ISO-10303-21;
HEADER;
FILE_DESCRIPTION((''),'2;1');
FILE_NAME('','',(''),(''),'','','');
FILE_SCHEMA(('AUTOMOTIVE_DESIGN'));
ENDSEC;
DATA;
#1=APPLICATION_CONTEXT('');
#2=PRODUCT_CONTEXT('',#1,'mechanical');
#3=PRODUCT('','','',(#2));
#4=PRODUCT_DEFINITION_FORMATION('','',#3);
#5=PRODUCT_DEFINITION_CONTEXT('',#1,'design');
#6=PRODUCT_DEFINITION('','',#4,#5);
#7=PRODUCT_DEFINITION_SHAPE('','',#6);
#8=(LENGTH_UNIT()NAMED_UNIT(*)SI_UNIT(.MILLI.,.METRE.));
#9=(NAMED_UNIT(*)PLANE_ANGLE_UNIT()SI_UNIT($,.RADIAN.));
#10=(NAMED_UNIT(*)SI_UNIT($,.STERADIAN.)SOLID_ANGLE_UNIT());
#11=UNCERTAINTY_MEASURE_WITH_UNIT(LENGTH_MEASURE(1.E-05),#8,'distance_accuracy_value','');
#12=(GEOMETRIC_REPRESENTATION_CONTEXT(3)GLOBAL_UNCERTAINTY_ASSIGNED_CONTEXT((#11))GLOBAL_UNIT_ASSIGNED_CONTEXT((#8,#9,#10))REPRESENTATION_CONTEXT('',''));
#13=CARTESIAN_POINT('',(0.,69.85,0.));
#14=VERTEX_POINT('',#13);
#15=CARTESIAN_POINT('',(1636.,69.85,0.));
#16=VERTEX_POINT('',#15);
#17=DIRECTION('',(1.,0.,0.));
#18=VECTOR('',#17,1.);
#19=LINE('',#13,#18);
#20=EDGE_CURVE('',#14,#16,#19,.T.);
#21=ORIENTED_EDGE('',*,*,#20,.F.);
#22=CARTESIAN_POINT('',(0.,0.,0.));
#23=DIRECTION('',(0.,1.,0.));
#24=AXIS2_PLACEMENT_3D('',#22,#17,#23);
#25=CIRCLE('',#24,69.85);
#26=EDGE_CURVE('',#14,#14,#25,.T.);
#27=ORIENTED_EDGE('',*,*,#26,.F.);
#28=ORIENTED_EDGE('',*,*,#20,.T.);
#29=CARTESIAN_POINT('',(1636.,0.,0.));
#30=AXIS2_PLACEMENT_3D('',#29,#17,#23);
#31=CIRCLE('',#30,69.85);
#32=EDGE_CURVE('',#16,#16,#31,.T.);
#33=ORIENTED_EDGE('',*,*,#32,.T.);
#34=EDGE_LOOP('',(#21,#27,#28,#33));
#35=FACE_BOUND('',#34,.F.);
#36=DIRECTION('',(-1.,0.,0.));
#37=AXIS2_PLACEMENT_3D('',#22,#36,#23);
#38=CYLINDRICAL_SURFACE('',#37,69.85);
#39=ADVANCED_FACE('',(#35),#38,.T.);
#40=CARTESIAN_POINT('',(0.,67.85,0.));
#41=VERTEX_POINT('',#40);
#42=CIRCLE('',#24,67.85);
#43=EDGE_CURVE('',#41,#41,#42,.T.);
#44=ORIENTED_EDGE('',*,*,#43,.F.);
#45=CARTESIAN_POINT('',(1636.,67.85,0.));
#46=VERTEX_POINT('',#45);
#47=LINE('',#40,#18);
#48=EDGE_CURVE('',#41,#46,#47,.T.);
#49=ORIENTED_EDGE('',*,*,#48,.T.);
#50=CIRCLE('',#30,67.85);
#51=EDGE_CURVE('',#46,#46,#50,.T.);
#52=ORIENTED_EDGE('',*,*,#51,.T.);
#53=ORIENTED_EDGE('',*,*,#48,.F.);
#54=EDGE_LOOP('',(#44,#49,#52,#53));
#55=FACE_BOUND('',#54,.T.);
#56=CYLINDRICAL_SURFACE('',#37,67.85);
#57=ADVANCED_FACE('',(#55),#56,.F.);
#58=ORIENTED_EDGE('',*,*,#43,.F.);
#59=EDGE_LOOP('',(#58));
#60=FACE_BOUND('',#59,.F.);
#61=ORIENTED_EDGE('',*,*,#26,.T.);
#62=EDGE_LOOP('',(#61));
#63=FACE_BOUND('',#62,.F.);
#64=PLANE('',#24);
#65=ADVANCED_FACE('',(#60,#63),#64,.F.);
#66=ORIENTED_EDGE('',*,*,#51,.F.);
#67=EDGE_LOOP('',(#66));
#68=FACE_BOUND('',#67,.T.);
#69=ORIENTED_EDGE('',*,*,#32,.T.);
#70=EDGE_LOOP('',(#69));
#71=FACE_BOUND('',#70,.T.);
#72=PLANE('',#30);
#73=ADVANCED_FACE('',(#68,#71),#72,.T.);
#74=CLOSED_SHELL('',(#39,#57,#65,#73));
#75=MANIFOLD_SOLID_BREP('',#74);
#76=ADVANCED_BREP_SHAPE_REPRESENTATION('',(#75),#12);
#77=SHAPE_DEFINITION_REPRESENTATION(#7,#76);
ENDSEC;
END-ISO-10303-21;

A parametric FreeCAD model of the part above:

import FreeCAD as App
import Part
import Sketcher
Q = App.Units.Quantity

doc = App.newDocument("Part")
params = doc.addObject("Spreadsheet::Sheet", "Params")
for row, (alias, value) in enumerate([
    ("sketch1_diameter", "139.7 mm"),
    ("sketch1_diameter2", "135.7 mm"),
    ("pad1_length", "1636 mm"),
], start=1):
    params.set(f"A{row}", alias)
    params.set(f"B{row}", "=" + value)
    params.setAlias(f"B{row}", alias)

body = doc.addObject("PartDesign::Body", "Body")

sketch1 = doc.addObject("Sketcher::SketchObject", "Sketch")
body.addObject(sketch1)
sketch1.AttachmentSupport = (doc.YZ_Plane, [""])
sketch1.MapMode = "FlatFace"
sketch1.addGeometry([
    Part.Circle(App.Vector(0, 0, 0), App.Vector(0, 0, 1), 70),
    Part.Circle(App.Vector(0, 0, 0), App.Vector(0, 0, 1), 68),
], False)
sketch1.addConstraint([
    Sketcher.Constraint("Coincident", 0, 3, -1, 1),
    Sketcher.Constraint("Coincident", 1, 3, -1, 1),
    Sketcher.Constraint("Diameter", 0, Q("139.7 mm")),
    Sketcher.Constraint("Diameter", 1, Q("135.7 mm")),
])
sketch1.setExpression("Constraints[2]", "Params.sketch1_diameter")
sketch1.setExpression("Constraints[3]", "Params.sketch1_diameter2")
pad1 = doc.addObject("PartDesign::Pad", "Pad")
body.addObject(pad1)
pad1.Profile = sketch1
pad1.setExpression("Length", "Params.pad1_length")

doc.recompute()
